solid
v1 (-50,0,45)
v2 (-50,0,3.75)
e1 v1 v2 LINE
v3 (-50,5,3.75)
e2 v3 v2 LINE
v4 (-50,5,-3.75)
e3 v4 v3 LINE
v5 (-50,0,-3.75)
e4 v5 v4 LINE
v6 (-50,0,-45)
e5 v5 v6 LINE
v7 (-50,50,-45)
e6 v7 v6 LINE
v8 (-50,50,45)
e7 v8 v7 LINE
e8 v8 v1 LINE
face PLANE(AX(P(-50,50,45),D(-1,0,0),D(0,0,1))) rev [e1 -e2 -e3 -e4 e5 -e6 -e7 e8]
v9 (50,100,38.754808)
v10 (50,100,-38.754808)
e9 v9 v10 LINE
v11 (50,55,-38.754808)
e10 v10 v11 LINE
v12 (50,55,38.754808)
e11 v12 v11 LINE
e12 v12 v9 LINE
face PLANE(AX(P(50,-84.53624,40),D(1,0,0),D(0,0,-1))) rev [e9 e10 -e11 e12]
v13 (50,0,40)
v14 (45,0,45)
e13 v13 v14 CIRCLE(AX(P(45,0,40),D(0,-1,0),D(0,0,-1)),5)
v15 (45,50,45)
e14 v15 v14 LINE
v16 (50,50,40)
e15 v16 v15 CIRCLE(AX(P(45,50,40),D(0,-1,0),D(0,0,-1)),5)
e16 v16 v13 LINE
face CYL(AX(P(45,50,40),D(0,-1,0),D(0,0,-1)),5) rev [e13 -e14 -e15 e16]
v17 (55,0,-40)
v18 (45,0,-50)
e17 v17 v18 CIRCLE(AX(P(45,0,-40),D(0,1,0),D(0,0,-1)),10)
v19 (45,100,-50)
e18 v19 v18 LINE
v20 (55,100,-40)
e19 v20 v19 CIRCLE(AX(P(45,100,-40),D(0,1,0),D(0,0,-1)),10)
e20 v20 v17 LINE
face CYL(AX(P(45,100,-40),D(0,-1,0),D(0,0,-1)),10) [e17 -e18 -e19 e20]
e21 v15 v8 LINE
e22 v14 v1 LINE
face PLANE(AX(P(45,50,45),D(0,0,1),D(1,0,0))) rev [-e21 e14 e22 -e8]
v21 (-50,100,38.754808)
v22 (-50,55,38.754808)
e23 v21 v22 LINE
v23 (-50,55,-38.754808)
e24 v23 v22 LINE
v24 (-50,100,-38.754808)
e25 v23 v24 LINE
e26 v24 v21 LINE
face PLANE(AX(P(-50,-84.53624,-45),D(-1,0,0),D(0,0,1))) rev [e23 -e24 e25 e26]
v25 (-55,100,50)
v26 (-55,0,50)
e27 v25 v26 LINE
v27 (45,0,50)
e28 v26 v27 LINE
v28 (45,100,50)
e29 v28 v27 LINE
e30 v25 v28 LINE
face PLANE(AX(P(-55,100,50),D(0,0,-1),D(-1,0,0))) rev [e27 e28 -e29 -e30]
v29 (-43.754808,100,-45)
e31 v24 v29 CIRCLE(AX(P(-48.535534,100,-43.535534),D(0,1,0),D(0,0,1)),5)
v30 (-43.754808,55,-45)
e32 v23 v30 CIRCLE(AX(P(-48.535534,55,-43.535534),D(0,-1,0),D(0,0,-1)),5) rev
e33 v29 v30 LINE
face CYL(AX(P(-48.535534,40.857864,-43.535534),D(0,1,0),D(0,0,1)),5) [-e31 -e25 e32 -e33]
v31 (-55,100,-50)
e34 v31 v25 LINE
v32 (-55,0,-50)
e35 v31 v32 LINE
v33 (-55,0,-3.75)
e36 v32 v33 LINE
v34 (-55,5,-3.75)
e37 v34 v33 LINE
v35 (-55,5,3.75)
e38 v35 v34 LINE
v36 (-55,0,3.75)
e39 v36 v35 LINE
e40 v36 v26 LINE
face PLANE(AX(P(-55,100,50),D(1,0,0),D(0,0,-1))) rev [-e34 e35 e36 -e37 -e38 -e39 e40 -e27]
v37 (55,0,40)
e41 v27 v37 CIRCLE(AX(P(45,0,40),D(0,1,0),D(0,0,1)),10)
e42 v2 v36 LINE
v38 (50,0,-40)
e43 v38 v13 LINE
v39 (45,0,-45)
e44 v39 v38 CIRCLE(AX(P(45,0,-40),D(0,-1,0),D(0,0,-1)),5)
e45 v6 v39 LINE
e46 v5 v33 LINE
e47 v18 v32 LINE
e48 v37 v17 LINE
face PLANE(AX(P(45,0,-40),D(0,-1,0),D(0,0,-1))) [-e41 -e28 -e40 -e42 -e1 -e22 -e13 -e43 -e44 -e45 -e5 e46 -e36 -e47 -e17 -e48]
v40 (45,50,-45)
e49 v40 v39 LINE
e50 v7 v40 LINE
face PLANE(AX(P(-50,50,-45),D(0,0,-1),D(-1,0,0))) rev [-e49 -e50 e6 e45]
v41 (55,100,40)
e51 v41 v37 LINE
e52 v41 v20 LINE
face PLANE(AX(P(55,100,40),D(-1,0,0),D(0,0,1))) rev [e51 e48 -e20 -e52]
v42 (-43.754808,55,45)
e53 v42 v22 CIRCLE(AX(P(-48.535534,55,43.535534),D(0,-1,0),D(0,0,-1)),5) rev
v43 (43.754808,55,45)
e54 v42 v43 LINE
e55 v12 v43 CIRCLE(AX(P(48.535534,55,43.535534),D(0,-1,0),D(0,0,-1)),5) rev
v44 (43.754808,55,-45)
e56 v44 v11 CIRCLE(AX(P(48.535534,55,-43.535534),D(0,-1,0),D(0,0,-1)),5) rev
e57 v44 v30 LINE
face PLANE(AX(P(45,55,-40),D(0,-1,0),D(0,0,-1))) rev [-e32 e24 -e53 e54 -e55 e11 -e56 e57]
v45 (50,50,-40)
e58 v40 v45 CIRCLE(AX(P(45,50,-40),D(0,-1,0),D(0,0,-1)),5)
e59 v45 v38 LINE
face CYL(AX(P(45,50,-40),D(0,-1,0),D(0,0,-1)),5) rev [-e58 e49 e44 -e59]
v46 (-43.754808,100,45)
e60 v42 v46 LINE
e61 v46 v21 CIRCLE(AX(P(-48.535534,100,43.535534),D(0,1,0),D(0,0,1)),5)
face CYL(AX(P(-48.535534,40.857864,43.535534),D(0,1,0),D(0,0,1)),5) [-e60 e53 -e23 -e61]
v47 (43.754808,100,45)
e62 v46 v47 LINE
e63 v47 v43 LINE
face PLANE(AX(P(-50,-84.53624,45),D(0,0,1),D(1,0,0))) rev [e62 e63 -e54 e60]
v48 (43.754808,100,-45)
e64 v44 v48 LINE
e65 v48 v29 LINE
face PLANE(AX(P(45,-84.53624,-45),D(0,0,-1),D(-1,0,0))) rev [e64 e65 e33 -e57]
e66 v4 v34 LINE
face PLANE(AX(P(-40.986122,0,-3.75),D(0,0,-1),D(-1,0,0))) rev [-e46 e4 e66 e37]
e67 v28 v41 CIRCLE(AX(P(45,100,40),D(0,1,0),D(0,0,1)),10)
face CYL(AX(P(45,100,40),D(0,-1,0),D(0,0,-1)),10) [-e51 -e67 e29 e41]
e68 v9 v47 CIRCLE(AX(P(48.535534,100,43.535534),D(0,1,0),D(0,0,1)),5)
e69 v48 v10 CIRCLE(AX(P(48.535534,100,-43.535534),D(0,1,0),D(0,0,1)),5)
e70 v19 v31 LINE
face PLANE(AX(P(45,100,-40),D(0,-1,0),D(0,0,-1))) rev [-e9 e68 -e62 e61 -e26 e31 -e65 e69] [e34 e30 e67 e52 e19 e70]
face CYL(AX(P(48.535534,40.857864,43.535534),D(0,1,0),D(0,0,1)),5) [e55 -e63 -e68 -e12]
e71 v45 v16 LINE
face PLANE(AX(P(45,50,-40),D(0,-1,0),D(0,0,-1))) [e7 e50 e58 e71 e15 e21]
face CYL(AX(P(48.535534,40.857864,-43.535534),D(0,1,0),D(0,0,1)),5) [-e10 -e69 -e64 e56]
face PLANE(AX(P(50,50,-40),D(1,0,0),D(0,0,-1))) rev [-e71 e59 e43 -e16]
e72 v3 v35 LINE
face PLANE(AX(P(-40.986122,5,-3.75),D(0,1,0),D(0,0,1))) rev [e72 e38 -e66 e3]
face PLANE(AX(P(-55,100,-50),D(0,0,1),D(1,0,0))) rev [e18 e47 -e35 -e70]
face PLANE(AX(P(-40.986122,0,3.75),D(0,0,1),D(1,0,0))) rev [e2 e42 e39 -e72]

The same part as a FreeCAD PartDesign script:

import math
import FreeCAD as App
import Part
import Sketcher

V = App.Vector
Q = App.Units.Quantity


def add_polygon(sketch, points):
    """Adds a closed chain of lines whose ends are joined by coincident constraints."""
    first, n = sketch.GeometryCount, len(points)
    for a, b in zip(points, points[1:] + points[:1]):
        sketch.addGeometry(Part.LineSegment(App.Vector(*a, 0), App.Vector(*b, 0)), False)
    for i in range(n):
        sketch.addConstraint(Sketcher.Constraint("Coincident", first + i, 2, first + (i + 1) % n, 1))

doc = App.newDocument("Part")
body = doc.addObject("PartDesign::Body", "Body")

# Sketch on XZ plane
sketch1 = body.newObject("Sketcher::SketchObject", "Sketch")
sketch1.AttachmentSupport = (doc.getObject("XZ_Plane"), [""])
sketch1.MapMode = "FlatFace"
sketch1.addGeometry([
    Part.LineSegment(V(-55, 50, 0), V(45, 50, 0)),  # 0
    Part.ArcOfCircle(Part.Circle(V(45, 40, 0), V(0, 0, 1), 10), math.radians(0), math.radians(90)),  # 1
    Part.LineSegment(V(55, 40, 0), V(55, -40, 0)),  # 2
    Part.ArcOfCircle(Part.Circle(V(45, -40, 0), V(0, 0, 1), 10), math.radians(-90), math.radians(0)),  # 3
    Part.LineSegment(V(45, -50, 0), V(-55, -50, 0)),  # 4
    Part.LineSegment(V(-55, -50, 0), V(-55, 50, 0)),  # 5
], False)
sketch1.addConstraint([
    Sketcher.Constraint("Tangent", 0, 2, 1, 2),
    Sketcher.Constraint("Tangent", 1, 1, 2, 1),
    Sketcher.Constraint("Tangent", 2, 2, 3, 2),
    Sketcher.Constraint("Tangent", 3, 1, 4, 1),
    Sketcher.Constraint("Coincident", 4, 2, 5, 1),
    Sketcher.Constraint("Coincident", 5, 2, 0, 1),
    Sketcher.Constraint("Horizontal", 0),
    Sketcher.Constraint("Vertical", 2),
    Sketcher.Constraint("Horizontal", 4),
    Sketcher.Constraint("Vertical", 5),
    Sketcher.Constraint("Equal", 1, 3),
    Sketcher.Constraint("Equal", 4, 5),
    Sketcher.Constraint("Radius", 1, Q("10 mm")),
    Sketcher.Constraint("DistanceX", 0, 1, 0, 2, Q("100 mm")),
    Sketcher.Constraint("DistanceX", -1, 1, 1, 3, Q("45 mm")),
    Sketcher.Constraint("DistanceY", -1, 1, 1, 3, Q("40 mm")),
])
pad1 = body.newObject("PartDesign::Pad", "Pad")
pad1.Profile = sketch1
pad1.Length = 100
pad1.Reversed = True

# Sketch on XZ plane
sketch2 = body.newObject("Sketcher::SketchObject", "Sketch001")
sketch2.AttachmentSupport = (doc.getObject("XZ_Plane"), [""])
sketch2.MapMode = "FlatFace"
sketch2.addGeometry([
    Part.LineSegment(V(-50, 45, 0), V(-50, -45, 0)),  # 0
    Part.LineSegment(V(-50, -45, 0), V(45, -45, 0)),  # 1
    Part.ArcOfCircle(Part.Circle(V(45, -40, 0), V(0, 0, 1), 5), math.radians(-90), math.radians(0)),  # 2
    Part.LineSegment(V(50, -40, 0), V(50, 40, 0)),  # 3
    Part.ArcOfCircle(Part.Circle(V(45, 40, 0), V(0, 0, 1), 5), math.radians(0), math.radians(90)),  # 4
    Part.LineSegment(V(45, 45, 0), V(-50, 45, 0)),  # 5
], False)
sketch2.addConstraint([
    Sketcher.Constraint("Coincident", 0, 2, 1, 1),
    Sketcher.Constraint("Tangent", 1, 2, 2, 1),
    Sketcher.Constraint("Tangent", 2, 2, 3, 1),
    Sketcher.Constraint("Tangent", 3, 2, 4, 1),
    Sketcher.Constraint("Tangent", 4, 2, 5, 1),
    Sketcher.Constraint("Coincident", 5, 2, 0, 1),
    Sketcher.Constraint("Vertical", 0),
    Sketcher.Constraint("Horizontal", 1),
    Sketcher.Constraint("Vertical", 3),
    Sketcher.Constraint("Horizontal", 5),
    Sketcher.Constraint("Equal", 2, 4),
    Sketcher.Constraint("Radius", 2, Q("5 mm")),
    Sketcher.Constraint("DistanceX", 1, 1, 1, 2, Q("95 mm")),
    Sketcher.Constraint("DistanceY", 0, 2, 0, 1, Q("90 mm")),
    Sketcher.Constraint("DistanceX", -1, 1, 2, 3, Q("45 mm")),
    Sketcher.Constraint("DistanceY", 2, 3, -1, 1, Q("40 mm")),
])
pocket1 = body.newObject("PartDesign::Pocket", "Pocket")
pocket1.Profile = sketch2
pocket1.Length = 50

# Sketch on XZ plane
sketch3 = body.newObject("Sketcher::SketchObject", "Sketch002")
sketch3.AttachmentSupport = (doc.getObject("XZ_Plane"), [""])
sketch3.MapMode = "FlatFace"
sketch3.AttachmentOffset = App.Placement(V(0, 0, -55), App.Rotation())
sketch3.addGeometry([
    Part.LineSegment(V(-50, -45, 0), V(-50, 45, 0)),  # 0
    Part.LineSegment(V(-50, 45, 0), V(45, 45, 0)),  # 1
    Part.ArcOfCircle(Part.Circle(V(45, 40, 0), V(0, 0, 1), 5), math.radians(0), math.radians(90)),  # 2
    Part.LineSegment(V(50, 40, 0), V(50, -40, 0)),  # 3
    Part.ArcOfCircle(Part.Circle(V(45, -40, 0), V(0, 0, 1), 5), math.radians(-90), math.radians(0)),  # 4
    Part.LineSegment(V(45, -45, 0), V(-50, -45, 0)),  # 5
], False)
sketch3.addConstraint([
    Sketcher.Constraint("Coincident", 0, 2, 1, 1),
    Sketcher.Constraint("Tangent", 1, 2, 2, 2),
    Sketcher.Constraint("Tangent", 2, 1, 3, 1),
    Sketcher.Constraint("Tangent", 3, 2, 4, 2),
    Sketcher.Constraint("Tangent", 4, 1, 5, 1),
    Sketcher.Constraint("Coincident", 5, 2, 0, 1),
    Sketcher.Constraint("Vertical", 0),
    Sketcher.Constraint("Horizontal", 1),
    Sketcher.Constraint("Vertical", 3),
    Sketcher.Constraint("Horizontal", 5),
    Sketcher.Constraint("Equal", 2, 4),
    Sketcher.Constraint("Radius", 2, Q("5 mm")),
    Sketcher.Constraint("DistanceX", 1, 1, 1, 2, Q("95 mm")),
    Sketcher.Constraint("DistanceY", 0, 1, 0, 2, Q("90 mm")),
    Sketcher.Constraint("DistanceX", -1, 1, 2, 3, Q("45 mm")),
    Sketcher.Constraint("DistanceY", -1, 1, 2, 3, Q("40 mm")),
])
pocket2 = body.newObject("PartDesign::Pocket", "Pocket001")
pocket2.Profile = sketch3
pocket2.Length = 45

# Sketch on XZ plane
sketch4 = body.newObject("Sketcher::SketchObject", "Sketch003")
sketch4.AttachmentSupport = (doc.getObject("XZ_Plane"), [""])
sketch4.MapMode = "FlatFace"
sketch4.AttachmentOffset = App.Placement(V(0, 0, -100), App.Rotation())
sketch4.addGeometry([
    Part.Circle(V(49, 44, 0), V(0, 0, 1), 5),
    Part.Circle(V(49, -44, 0), V(0, 0, 1), 5),
    Part.Circle(V(-49, 44, 0), V(0, 0, 1), 5),
    Part.Circle(V(-49, -44, 0), V(0, 0, 1), 5),
], False)
sketch4.addConstraint([
    Sketcher.Constraint("Equal", 0, 1),
    Sketcher.Constraint("Equal", 1, 2),
    Sketcher.Constraint("Equal", 2, 3),
    Sketcher.Constraint("Symmetric", 1, 3, 2, 3, -1, 1),
    Sketcher.Constraint("Symmetric", 0, 3, 3, 3, -1, 1),
    Sketcher.Constraint("Symmetric", 0, 3, 2, 3, -2),
    Sketcher.Constraint("Diameter", 0, Q("10 mm")),
    Sketcher.Constraint("DistanceX", -1, 1, 0, 3, Q("48.535534 mm")),
    Sketcher.Constraint("DistanceY", -1, 1, 0, 3, Q("43.535534 mm")),
])
pad2 = body.newObject("PartDesign::Pad", "Pad001")
pad2.Profile = sketch4
pad2.Length = 45

# Sketch on YZ plane
sketch5 = body.newObject("Sketcher::SketchObject", "Sketch004")
sketch5.AttachmentSupport = (doc.getObject("YZ_Plane"), [""])
sketch5.MapMode = "FlatFace"
sketch5.AttachmentOffset = App.Placement(V(0, 0, -55), App.Rotation())
add_polygon(sketch5, [(5, -4), (0, -4), (0, 4), (5, 4)])  # lines 0-3
sketch5.addConstraint([
    Sketcher.Constraint("Horizontal", 0),
    Sketcher.Constraint("Vertical", 1),
    Sketcher.Constraint("Horizontal", 2),
    Sketcher.Constraint("Vertical", 3),
    Sketcher.Constraint("Symmetric", 0, 2, 1, 2, -1, 1),
    Sketcher.Constraint("DistanceX", 0, 2, 0, 1, Q("5 mm")),
    Sketcher.Constraint("DistanceY", 1, 1, 1, 2, Q("7.5 mm")),
])
pocket3 = body.newObject("PartDesign::Pocket", "Pocket002")
pocket3.Profile = sketch5
pocket3.Length = 5
pocket3.Reversed = True

doc.recompute()
